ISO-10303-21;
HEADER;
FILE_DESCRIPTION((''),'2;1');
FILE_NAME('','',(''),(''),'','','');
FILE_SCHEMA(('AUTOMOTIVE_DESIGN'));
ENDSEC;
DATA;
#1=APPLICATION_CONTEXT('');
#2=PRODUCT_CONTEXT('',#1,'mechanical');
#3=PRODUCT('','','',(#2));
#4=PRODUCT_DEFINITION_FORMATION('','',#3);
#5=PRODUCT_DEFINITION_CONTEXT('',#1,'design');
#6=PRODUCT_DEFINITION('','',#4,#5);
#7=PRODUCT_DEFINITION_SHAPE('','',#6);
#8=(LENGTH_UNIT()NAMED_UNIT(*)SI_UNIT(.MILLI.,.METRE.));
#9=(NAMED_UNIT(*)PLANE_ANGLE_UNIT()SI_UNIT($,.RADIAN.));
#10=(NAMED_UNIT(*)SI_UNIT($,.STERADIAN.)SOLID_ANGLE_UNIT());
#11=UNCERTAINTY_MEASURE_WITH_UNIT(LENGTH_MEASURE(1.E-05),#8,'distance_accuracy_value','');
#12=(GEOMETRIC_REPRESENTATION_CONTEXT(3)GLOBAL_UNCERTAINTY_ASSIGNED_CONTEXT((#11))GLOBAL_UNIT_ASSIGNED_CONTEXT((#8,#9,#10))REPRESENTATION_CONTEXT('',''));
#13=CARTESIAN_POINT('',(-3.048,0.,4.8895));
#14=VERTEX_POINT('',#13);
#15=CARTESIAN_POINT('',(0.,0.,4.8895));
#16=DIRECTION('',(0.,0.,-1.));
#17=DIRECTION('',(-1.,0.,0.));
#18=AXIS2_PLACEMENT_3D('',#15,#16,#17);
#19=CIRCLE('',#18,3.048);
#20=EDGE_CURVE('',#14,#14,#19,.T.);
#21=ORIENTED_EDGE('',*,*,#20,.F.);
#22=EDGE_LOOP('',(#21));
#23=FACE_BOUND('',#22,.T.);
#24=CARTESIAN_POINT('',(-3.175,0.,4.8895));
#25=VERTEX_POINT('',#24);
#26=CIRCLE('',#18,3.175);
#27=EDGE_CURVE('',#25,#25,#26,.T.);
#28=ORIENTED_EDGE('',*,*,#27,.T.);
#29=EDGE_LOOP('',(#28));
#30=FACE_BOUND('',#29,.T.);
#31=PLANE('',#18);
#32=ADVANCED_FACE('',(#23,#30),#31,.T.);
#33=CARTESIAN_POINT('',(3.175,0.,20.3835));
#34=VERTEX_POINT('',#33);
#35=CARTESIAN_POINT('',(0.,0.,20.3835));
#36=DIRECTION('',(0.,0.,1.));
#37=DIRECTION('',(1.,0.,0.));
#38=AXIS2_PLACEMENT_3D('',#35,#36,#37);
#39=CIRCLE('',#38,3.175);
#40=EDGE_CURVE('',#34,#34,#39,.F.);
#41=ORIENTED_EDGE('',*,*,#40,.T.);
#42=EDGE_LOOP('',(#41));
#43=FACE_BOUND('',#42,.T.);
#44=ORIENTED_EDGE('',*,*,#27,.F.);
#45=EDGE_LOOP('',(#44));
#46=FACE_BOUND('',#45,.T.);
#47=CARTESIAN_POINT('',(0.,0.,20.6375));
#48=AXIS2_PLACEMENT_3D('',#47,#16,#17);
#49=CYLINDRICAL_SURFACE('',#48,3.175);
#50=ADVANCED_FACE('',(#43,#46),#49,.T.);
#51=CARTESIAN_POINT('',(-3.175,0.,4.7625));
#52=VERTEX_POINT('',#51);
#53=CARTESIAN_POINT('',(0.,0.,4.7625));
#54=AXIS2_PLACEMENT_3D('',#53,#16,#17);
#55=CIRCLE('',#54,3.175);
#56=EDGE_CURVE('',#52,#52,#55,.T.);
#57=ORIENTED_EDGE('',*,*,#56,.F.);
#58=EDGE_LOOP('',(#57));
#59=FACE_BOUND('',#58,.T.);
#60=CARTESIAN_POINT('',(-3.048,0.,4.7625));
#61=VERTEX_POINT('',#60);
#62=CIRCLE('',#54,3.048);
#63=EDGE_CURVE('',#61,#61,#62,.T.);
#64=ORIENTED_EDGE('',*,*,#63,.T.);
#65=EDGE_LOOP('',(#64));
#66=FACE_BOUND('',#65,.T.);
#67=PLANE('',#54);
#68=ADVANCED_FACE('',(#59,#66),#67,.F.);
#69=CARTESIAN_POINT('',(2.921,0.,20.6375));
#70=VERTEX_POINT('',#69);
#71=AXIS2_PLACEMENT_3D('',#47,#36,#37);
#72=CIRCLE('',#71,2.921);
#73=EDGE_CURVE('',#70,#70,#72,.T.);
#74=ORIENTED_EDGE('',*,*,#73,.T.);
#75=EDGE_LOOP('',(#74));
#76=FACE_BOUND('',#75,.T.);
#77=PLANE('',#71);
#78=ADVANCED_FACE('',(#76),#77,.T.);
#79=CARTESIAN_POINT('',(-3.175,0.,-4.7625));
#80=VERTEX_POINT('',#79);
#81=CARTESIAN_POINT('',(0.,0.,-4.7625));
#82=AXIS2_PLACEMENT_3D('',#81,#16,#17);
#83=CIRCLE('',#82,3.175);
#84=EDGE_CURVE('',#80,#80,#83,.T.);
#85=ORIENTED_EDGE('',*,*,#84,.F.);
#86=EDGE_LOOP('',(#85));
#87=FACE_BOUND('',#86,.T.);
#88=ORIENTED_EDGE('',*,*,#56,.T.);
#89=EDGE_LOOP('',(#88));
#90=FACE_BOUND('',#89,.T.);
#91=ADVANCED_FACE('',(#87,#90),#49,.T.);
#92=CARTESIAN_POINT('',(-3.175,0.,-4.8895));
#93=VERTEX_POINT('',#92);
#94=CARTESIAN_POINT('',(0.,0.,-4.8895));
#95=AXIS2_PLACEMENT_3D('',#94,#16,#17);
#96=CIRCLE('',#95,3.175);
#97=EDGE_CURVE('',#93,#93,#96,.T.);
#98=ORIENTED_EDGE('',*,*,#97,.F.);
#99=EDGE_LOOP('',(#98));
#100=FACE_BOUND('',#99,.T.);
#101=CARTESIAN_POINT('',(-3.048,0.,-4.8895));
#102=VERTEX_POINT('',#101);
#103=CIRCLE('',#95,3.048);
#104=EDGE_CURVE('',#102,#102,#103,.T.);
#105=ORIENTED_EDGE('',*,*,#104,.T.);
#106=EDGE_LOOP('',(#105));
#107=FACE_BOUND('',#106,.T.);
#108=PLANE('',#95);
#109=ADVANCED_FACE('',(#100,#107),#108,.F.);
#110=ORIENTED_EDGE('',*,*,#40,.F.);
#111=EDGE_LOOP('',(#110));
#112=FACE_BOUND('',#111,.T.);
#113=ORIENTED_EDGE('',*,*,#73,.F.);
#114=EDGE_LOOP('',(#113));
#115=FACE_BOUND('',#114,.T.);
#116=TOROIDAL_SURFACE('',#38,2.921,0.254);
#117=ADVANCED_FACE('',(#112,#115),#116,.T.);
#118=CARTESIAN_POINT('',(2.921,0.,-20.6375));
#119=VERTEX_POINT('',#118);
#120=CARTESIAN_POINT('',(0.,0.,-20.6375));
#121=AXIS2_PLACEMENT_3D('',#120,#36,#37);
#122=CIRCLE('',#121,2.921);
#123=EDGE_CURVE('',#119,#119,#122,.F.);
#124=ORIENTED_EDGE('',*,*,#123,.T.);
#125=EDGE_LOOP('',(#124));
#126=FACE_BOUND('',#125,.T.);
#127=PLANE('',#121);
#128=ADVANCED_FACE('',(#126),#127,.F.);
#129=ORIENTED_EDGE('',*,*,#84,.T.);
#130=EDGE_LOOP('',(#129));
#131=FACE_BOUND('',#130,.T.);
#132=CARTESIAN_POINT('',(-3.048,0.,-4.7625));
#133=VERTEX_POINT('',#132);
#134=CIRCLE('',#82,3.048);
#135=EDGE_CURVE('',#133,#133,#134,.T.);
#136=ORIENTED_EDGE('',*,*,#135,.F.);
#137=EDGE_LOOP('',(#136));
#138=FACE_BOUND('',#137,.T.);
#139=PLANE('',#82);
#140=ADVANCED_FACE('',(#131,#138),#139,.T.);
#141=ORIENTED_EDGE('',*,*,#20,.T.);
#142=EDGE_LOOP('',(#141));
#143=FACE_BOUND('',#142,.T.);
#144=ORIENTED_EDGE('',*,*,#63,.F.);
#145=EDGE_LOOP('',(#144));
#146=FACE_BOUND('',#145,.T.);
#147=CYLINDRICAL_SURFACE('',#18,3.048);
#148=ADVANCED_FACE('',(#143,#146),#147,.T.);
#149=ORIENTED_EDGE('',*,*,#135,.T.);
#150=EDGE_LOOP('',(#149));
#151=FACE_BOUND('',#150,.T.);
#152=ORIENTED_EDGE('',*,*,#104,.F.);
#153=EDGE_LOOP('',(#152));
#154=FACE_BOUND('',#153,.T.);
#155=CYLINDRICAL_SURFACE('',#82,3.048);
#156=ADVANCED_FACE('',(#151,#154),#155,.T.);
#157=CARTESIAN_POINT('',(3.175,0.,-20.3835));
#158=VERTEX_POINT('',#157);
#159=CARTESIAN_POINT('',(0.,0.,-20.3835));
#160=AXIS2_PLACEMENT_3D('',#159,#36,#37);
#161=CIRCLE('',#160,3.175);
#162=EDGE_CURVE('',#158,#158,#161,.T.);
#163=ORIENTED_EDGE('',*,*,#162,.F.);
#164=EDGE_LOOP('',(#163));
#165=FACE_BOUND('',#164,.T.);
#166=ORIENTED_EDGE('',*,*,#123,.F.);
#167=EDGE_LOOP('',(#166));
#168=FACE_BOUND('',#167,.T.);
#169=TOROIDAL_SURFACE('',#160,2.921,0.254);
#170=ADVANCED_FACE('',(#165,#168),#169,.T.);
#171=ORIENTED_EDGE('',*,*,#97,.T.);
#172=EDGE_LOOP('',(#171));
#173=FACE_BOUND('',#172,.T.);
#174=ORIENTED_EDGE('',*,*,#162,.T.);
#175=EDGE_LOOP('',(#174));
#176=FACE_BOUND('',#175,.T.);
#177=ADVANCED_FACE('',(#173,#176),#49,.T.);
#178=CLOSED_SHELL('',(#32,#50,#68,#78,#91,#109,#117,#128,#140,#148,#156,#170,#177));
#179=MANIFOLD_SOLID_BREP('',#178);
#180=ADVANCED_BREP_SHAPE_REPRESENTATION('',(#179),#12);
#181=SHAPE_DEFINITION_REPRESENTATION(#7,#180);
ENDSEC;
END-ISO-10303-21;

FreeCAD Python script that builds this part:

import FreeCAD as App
import Part
import Sketcher
Q = App.Units.Quantity


def edges_at(feature, points):
    """Names of the edges that pass closest to the given points."""
    edges = feature.Shape.Edges
    near = lambda p: min(range(len(edges)), key=lambda i: edges[i].distToShape(Part.Vertex(*p))[0])
    return sorted({f"Edge{near(p) + 1}" for p in points})

doc = App.newDocument("Part")
body = doc.addObject("PartDesign::Body", "Body")

sketch1 = body.newObject("Sketcher::SketchObject", "Sketch")
sketch1.AttachmentSupport = (doc.getObject("XY_Plane"), [""])
sketch1.MapMode = "FlatFace"
sketch1.addGeometry(Part.Circle(App.Vector(0, 0, 0), App.Vector(0, 0, 1), 3.2), False)
sketch1.addConstraint(Sketcher.Constraint("Coincident", 0, 3, -1, 1))
sketch1.addConstraint(Sketcher.Constraint("Diameter", 0, Q("0.25 in")))
pad1 = body.newObject("PartDesign::Pad", "Pad")
pad1.Profile = sketch1
pad1.Length = Q("1.625 in")
pad1.Midplane = True

sketch2 = body.newObject("Sketcher::SketchObject", "Sketch001")
sketch2.AttachmentSupport = (doc.getObject("XY_Plane"), [""])
sketch2.MapMode = "FlatFace"
sketch2.AttachmentOffset = App.Placement(App.Vector(0, 0, -0.1875 * 25.4), App.Rotation())
sketch2.addGeometry(Part.Circle(App.Vector(0, 0, 0), App.Vector(0, 0, 1), 3.2), False)
sketch2.addGeometry(Part.Circle(App.Vector(0, 0, 0), App.Vector(0, 0, 1), 3), False)
sketch2.addConstraint(Sketcher.Constraint("Coincident", 0, 3, -1, 1))
sketch2.addConstraint(Sketcher.Constraint("Coincident", 1, 3, -1, 1))
sketch2.addConstraint(Sketcher.Constraint("Diameter", 0, Q("0.25 in")))
sketch2.addConstraint(Sketcher.Constraint("Diameter", 1, Q("0.24 in")))
pocket1 = body.newObject("PartDesign::Pocket", "Pocket")
pocket1.Profile = sketch2
pocket1.Length = Q("0.005 in")

sketch3 = body.newObject("Sketcher::SketchObject", "Sketch002")
sketch3.AttachmentSupport = (doc.getObject("XY_Plane"), [""])
sketch3.MapMode = "FlatFace"
sketch3.AttachmentOffset = App.Placement(App.Vector(0, 0, 0.1925 * 25.4), App.Rotation())
sketch3.addGeometry(Part.Circle(App.Vector(0, 0, 0), App.Vector(0, 0, 1), 3.2), False)
sketch3.addGeometry(Part.Circle(App.Vector(0, 0, 0), App.Vector(0, 0, 1), 3), False)
sketch3.addConstraint(Sketcher.Constraint("Coincident", 0, 3, -1, 1))
sketch3.addConstraint(Sketcher.Constraint("Coincident", 1, 3, -1, 1))
sketch3.addConstraint(Sketcher.Constraint("Diameter", 0, Q("0.25 in")))
sketch3.addConstraint(Sketcher.Constraint("Diameter", 1, Q("0.24 in")))
pocket2 = body.newObject("PartDesign::Pocket", "Pocket001")
pocket2.Profile = sketch3
pocket2.Length = Q("0.005 in")
doc.recompute()

fillet = body.newObject("PartDesign::Fillet", "Fillet")
fillet.Base = (pocket2, edges_at(pocket2, [(-3.175, 0, -20.637), (-3.175, 0, 20.637)]))
fillet.Radius = Q("0.01 in")

doc.recompute()
